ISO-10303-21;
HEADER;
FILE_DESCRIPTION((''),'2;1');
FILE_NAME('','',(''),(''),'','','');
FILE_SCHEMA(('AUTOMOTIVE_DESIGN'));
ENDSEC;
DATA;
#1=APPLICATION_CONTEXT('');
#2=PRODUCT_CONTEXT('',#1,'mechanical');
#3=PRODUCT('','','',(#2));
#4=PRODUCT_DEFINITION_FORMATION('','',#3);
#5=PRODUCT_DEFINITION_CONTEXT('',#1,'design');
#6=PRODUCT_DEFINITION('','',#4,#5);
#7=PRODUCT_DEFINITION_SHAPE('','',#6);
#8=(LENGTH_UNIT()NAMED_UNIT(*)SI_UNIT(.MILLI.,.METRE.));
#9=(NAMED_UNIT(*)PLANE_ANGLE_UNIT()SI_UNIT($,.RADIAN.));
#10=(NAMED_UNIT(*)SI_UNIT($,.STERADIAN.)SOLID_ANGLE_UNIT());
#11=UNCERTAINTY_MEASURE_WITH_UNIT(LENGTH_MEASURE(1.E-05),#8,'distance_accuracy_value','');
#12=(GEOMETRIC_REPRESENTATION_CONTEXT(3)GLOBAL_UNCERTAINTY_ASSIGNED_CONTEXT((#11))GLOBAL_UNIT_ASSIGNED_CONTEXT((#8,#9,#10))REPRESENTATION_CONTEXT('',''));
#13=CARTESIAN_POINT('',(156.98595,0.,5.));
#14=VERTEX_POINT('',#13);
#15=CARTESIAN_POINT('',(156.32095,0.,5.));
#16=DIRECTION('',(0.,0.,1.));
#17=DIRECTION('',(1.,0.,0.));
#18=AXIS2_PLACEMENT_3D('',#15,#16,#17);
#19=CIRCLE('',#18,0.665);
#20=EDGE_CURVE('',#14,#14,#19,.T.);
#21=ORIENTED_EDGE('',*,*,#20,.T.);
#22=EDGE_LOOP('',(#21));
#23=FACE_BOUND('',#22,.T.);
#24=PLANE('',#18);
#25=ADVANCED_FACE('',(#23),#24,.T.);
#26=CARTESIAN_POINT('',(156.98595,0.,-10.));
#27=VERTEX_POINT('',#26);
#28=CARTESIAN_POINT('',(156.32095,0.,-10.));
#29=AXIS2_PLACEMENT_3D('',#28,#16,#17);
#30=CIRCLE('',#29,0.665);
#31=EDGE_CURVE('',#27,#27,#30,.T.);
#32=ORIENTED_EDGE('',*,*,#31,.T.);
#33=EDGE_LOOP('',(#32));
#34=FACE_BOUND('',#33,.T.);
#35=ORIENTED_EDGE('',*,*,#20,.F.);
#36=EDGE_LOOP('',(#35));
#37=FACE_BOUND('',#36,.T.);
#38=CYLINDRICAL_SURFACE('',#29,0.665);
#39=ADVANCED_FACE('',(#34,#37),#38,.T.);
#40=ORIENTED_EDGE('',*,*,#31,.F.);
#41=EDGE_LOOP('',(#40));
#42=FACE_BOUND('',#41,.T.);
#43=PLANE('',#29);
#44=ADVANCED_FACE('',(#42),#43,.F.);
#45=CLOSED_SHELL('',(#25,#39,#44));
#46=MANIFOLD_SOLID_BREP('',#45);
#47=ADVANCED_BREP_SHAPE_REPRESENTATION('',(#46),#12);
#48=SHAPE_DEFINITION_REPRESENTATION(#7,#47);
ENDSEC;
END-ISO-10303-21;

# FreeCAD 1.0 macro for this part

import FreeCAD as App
import Part
import Sketcher
Q = App.Units.Quantity

doc = App.newDocument("Part")
body = doc.addObject("PartDesign::Body", "Body")

# Sketch on XY plane
sketch1 = body.newObject("Sketcher::SketchObject", "Sketch")
sketch1.AttachmentSupport = (doc.getObject("XY_Plane"), [""])
sketch1.MapMode = "FlatFace"
sketch1.addGeometry(Part.Circle(App.Vector(156.32095, 0, 0), App.Vector(0, 0, 1), 0.665), False)
sketch1.addConstraint(Sketcher.Constraint("PointOnObject", 0, 3, -1))
sketch1.addConstraint(Sketcher.Constraint("Diameter", 0, Q("1.33 mm")))
sketch1.addConstraint(Sketcher.Constraint("DistanceX", -1, 1, 0, 3, Q("156.32095 mm")))
pad1 = body.newObject("PartDesign::Pad", "Pad")
pad1.Profile = sketch1
pad1.Type = "TwoLengths"
pad1.Length = 5
pad1.Length2 = 10

doc.recompute()
